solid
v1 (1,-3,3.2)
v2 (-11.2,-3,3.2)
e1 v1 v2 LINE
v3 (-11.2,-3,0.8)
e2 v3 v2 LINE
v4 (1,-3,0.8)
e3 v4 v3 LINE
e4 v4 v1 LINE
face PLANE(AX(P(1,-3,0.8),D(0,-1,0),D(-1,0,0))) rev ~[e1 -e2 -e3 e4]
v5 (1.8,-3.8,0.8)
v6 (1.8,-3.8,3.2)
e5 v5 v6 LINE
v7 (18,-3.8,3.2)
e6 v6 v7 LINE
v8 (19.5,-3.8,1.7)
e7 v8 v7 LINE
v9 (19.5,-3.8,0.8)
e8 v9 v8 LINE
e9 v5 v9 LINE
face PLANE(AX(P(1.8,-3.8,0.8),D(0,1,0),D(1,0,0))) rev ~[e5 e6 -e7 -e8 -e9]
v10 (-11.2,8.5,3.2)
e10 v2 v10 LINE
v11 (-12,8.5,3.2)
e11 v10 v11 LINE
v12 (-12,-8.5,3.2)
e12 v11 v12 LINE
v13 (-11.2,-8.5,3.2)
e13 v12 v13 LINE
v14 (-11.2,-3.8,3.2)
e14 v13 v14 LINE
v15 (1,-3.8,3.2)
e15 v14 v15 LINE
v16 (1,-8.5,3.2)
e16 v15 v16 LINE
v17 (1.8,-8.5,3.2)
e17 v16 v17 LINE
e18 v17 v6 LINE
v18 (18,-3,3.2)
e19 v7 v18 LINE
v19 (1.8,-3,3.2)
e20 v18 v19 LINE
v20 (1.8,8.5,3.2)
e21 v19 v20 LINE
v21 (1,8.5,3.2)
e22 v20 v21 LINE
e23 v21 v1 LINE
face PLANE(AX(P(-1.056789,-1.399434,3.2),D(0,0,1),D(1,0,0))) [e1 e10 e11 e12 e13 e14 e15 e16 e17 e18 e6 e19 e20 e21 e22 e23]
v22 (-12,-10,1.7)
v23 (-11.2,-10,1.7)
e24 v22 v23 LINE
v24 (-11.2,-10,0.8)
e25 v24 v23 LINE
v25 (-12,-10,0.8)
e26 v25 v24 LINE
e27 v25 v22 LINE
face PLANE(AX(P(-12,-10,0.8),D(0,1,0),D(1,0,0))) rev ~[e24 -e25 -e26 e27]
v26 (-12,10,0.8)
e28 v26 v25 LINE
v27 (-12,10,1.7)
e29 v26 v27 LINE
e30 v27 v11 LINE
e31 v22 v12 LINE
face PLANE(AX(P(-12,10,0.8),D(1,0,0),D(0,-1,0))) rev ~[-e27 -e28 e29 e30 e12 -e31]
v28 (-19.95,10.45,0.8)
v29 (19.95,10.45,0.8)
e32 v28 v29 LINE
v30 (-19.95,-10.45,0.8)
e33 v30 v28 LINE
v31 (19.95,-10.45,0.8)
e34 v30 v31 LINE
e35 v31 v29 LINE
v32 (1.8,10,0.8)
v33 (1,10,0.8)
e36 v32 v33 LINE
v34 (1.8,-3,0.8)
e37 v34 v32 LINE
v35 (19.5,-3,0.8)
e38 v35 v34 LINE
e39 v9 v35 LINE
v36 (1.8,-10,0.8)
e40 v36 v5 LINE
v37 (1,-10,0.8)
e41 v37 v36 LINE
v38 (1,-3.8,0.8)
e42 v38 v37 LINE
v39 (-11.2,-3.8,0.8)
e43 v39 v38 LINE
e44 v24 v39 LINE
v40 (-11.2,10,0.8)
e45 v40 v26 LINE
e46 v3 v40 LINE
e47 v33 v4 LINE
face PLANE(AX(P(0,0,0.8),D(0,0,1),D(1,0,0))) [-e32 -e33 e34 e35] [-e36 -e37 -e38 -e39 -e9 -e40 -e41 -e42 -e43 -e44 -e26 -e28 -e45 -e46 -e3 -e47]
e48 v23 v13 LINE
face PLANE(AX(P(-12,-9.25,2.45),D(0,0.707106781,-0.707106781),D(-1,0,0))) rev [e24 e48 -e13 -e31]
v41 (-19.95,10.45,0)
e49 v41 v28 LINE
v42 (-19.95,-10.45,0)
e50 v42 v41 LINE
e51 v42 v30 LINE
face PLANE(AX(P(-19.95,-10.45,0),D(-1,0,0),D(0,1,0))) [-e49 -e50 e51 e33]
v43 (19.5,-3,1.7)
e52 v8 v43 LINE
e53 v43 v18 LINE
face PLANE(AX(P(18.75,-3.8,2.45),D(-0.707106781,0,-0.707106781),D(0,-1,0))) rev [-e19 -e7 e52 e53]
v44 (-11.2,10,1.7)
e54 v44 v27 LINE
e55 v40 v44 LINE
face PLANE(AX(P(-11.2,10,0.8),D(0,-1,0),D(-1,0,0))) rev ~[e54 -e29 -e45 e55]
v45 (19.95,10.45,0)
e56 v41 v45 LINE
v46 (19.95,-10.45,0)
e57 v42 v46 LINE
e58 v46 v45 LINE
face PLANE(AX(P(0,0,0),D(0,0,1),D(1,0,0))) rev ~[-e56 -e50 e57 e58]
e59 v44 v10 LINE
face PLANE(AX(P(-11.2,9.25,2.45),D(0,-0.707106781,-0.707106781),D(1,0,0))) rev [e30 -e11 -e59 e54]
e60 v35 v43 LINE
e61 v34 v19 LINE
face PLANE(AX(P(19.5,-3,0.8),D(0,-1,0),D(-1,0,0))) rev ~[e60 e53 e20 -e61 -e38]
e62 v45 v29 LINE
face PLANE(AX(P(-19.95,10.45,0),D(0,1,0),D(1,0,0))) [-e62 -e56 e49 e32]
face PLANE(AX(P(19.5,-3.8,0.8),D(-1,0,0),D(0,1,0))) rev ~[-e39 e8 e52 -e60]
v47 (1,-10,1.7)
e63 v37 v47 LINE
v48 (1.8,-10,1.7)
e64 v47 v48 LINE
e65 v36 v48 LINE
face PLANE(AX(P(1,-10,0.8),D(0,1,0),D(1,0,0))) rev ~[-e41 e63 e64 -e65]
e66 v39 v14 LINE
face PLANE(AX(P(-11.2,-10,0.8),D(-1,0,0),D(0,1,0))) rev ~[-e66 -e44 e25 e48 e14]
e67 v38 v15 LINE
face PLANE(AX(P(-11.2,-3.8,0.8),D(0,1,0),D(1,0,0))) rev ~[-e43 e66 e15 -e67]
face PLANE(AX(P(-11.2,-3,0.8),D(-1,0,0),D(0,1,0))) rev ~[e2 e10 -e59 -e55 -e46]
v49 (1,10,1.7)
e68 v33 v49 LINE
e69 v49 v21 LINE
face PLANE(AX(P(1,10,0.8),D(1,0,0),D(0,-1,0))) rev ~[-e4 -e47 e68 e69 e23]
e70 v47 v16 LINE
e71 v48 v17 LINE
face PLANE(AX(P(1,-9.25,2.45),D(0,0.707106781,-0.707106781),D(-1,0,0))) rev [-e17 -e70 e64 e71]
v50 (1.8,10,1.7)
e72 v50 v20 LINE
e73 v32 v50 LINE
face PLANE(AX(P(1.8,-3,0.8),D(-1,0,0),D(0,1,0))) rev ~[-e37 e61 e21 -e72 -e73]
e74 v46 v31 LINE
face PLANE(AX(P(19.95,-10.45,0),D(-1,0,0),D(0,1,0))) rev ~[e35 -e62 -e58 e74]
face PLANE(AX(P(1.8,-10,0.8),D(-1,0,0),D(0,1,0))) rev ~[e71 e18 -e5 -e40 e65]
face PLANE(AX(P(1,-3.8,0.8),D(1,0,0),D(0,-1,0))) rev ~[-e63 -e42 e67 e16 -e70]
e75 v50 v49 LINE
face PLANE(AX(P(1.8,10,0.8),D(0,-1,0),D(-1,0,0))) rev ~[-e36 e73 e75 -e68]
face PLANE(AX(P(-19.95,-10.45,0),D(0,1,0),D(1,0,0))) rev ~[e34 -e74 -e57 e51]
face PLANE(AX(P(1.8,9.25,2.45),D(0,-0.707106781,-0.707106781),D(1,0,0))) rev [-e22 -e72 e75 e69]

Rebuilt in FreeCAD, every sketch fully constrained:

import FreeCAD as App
import Part
import Sketcher


def edges_at(feature, points):
    """Names of the edges that pass closest to the given points."""
    edges = feature.Shape.Edges
    near = lambda p: min(range(len(edges)), key=lambda i: edges[i].distToShape(Part.Vertex(*p))[0])
    return sorted({f"Edge{near(p) + 1}" for p in points})


def add_polygon(sketch, points):
    """Adds a closed chain of lines whose ends are joined by coincident constraints."""
    first, n = sketch.GeometryCount, len(points)
    for a, b in zip(points, points[1:] + points[:1]):
        sketch.addGeometry(Part.LineSegment(App.Vector(*a, 0), App.Vector(*b, 0)), False)
    for i in range(n):
        sketch.addConstraint(Sketcher.Constraint("Coincident", first + i, 2, first + (i + 1) % n, 1))

doc = App.newDocument("Part")
body = doc.addObject("PartDesign::Body", "Body")

# Sketch on XY plane
sketch1 = doc.addObject("Sketcher::SketchObject", "Sketch")
body.addObject(sketch1)
sketch1.AttachmentSupport = (doc.XY_Plane, [""])
sketch1.MapMode = "FlatFace"
add_polygon(sketch1, [(-20, 10), (-20, -10), (20, -10), (20, 10)])  # lines 0-3
sketch1.addConstraint(Sketcher.Constraint("Vertical", 0))
sketch1.addConstraint(Sketcher.Constraint("Horizontal", 1))
sketch1.addConstraint(Sketcher.Constraint("Vertical", 2))
sketch1.addConstraint(Sketcher.Constraint("Horizontal", 3))
sketch1.addConstraint(Sketcher.Constraint("Symmetric", 0, 2, 2, 2, -1, 1))
sketch1.addConstraint(Sketcher.Constraint("DistanceX", 1, 1, 1, 2, 39.9))
sketch1.addConstraint(Sketcher.Constraint("DistanceY", 0, 2, 0, 1, 20.9))
pad1 = doc.addObject("PartDesign::Pad", "Pad")
body.addObject(pad1)
pad1.Profile = sketch1
pad1.Length = 0.8

# Sketch on XY plane
sketch2 = doc.addObject("Sketcher::SketchObject", "Sketch001")
body.addObject(sketch2)
sketch2.AttachmentSupport = (doc.XY_Plane, [""])
sketch2.MapMode = "FlatFace"
sketch2.AttachmentOffset = App.Placement(App.Vector(0, 0, 0.8), App.Rotation())
add_polygon(sketch2, [(-12, -10), (-11.2, -10), (-11.2, -3.8), (1, -3.8), (1, -10), (1.8, -10), (1.8, -3.8), (19.5, -3.8), (19.5, -3), (1.8, -3), (1.8, 10), (1, 10), (1, -3), (-11.2, -3), (-11.2, 10), (-12, 10)])  # lines 0-15
sketch2.addConstraint(Sketcher.Constraint("Horizontal", 0))
sketch2.addConstraint(Sketcher.Constraint("Vertical", 1))
sketch2.addConstraint(Sketcher.Constraint("Horizontal", 2))
sketch2.addConstraint(Sketcher.Constraint("Vertical", 3))
sketch2.addConstraint(Sketcher.Constraint("Horizontal", 4))
sketch2.addConstraint(Sketcher.Constraint("Vertical", 5))
sketch2.addConstraint(Sketcher.Constraint("Horizontal", 6))
sketch2.addConstraint(Sketcher.Constraint("Vertical", 7))
sketch2.addConstraint(Sketcher.Constraint("Horizontal", 8))
sketch2.addConstraint(Sketcher.Constraint("Vertical", 9))
sketch2.addConstraint(Sketcher.Constraint("Horizontal", 10))
sketch2.addConstraint(Sketcher.Constraint("Vertical", 11))
sketch2.addConstraint(Sketcher.Constraint("Horizontal", 12))
sketch2.addConstraint(Sketcher.Constraint("Vertical", 13))
sketch2.addConstraint(Sketcher.Constraint("Horizontal", 14))
sketch2.addConstraint(Sketcher.Constraint("Vertical", 15))
sketch2.addConstraint(Sketcher.Constraint("Symmetric", 4, 2, 9, 2, -1))
sketch2.addConstraint(Sketcher.Constraint("Symmetric", 0, 2, 13, 2, -1))
sketch2.addConstraint(Sketcher.Constraint("Horizontal", 0, 2, 3, 2))
sketch2.addConstraint(Sketcher.Constraint("Horizontal", 2, 2, 5, 2))
sketch2.addConstraint(Sketcher.Constraint("Horizontal", 8, 2, 11, 2))
sketch2.addConstraint(Sketcher.Constraint("Vertical", 3, 2, 10, 2))
sketch2.addConstraint(Sketcher.Constraint("Equal", 0, 4))
sketch2.addConstraint(Sketcher.Constraint("Equal", 14, 7))
sketch2.addConstraint(Sketcher.Constraint("DistanceY", 9, 1, 9, 2, 13.0))
sketch2.addConstraint(Sketcher.Constraint("DistanceY", 15, 2, 15, 1, 20.0))
sketch2.addConstraint(Sketcher.Constraint("DistanceX", 0, 1, 0, 2, 0.8))
sketch2.addConstraint(Sketcher.Constraint("DistanceX", 2, 1, 2, 2, 12.2))
sketch2.addConstraint(Sketcher.Constraint("DistanceX", 6, 1, 6, 2, 17.7))
sketch2.addConstraint(Sketcher.Constraint("DistanceX", -1, 1, 2, 2, 1.0))
pad2 = doc.addObject("PartDesign::Pad", "Pad001")
body.addObject(pad2)
pad2.Profile = sketch2
pad2.Length = 2.4
doc.recompute()

chamfer = doc.addObject("PartDesign::Chamfer", "Chamfer")
body.addObject(chamfer)
chamfer.Base = (pad2, edges_at(pad2, [
    (-11.6, -10, 3.2),
    (1.4, -10, 3.2),
    (-11.6, 10, 3.2),
    (1.4, 10, 3.2),
    (19.5, -3.4, 3.2),
]))
chamfer.Size = 1.5

doc.recompute()
